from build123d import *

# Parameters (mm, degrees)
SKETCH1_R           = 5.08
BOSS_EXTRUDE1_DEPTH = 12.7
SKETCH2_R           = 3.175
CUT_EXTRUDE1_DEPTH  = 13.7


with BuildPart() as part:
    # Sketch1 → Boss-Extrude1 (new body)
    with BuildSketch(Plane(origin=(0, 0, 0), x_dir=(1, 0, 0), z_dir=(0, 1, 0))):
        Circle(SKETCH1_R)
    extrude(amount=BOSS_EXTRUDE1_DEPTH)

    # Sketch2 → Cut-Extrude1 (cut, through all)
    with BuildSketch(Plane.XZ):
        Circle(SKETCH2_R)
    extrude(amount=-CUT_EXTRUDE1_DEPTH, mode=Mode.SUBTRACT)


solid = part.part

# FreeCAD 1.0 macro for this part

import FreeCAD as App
import Part
import Sketcher

V = App.Vector
Q = App.Units.Quantity

doc = App.newDocument("Part")
body = doc.addObject("PartDesign::Body", "Body")

sketch1 = body.newObject("Sketcher::SketchObject", "Sketch")
sketch1.AttachmentSupport = (doc.getObject("XZ_Plane"), [""])
sketch1.MapMode = "FlatFace"
sketch1.addGeometry(Part.Circle(V(0, 0, 0), V(0, 0, 1), 5), False)
sketch1.addConstraint([
    Sketcher.Constraint("Coincident", 0, 3, -1, 1),
    Sketcher.Constraint("Diameter", 0, Q("0.4 in")),
])
pad1 = body.newObject("PartDesign::Pad", "Pad")
pad1.Profile = sketch1
pad1.Length = Q("0.5 in")
pad1.Reversed = True

sketch2 = body.newObject("Sketcher::SketchObject", "Sketch001")
sketch2.AttachmentSupport = (doc.getObject("XZ_Plane"), [""])
sketch2.MapMode = "FlatFace"
sketch2.addGeometry(Part.Circle(V(0, 0, 0), V(0, 0, 1), 3.2), False)
sketch2.addConstraint([
    Sketcher.Constraint("Coincident", 0, 3, -1, 1),
    Sketcher.Constraint("Diameter", 0, Q("0.25 in")),
])
pocket1 = body.newObject("PartDesign::Pocket", "Pocket")
pocket1.Profile = sketch2
pocket1.Type = "ThroughAll"

doc.recompute()
